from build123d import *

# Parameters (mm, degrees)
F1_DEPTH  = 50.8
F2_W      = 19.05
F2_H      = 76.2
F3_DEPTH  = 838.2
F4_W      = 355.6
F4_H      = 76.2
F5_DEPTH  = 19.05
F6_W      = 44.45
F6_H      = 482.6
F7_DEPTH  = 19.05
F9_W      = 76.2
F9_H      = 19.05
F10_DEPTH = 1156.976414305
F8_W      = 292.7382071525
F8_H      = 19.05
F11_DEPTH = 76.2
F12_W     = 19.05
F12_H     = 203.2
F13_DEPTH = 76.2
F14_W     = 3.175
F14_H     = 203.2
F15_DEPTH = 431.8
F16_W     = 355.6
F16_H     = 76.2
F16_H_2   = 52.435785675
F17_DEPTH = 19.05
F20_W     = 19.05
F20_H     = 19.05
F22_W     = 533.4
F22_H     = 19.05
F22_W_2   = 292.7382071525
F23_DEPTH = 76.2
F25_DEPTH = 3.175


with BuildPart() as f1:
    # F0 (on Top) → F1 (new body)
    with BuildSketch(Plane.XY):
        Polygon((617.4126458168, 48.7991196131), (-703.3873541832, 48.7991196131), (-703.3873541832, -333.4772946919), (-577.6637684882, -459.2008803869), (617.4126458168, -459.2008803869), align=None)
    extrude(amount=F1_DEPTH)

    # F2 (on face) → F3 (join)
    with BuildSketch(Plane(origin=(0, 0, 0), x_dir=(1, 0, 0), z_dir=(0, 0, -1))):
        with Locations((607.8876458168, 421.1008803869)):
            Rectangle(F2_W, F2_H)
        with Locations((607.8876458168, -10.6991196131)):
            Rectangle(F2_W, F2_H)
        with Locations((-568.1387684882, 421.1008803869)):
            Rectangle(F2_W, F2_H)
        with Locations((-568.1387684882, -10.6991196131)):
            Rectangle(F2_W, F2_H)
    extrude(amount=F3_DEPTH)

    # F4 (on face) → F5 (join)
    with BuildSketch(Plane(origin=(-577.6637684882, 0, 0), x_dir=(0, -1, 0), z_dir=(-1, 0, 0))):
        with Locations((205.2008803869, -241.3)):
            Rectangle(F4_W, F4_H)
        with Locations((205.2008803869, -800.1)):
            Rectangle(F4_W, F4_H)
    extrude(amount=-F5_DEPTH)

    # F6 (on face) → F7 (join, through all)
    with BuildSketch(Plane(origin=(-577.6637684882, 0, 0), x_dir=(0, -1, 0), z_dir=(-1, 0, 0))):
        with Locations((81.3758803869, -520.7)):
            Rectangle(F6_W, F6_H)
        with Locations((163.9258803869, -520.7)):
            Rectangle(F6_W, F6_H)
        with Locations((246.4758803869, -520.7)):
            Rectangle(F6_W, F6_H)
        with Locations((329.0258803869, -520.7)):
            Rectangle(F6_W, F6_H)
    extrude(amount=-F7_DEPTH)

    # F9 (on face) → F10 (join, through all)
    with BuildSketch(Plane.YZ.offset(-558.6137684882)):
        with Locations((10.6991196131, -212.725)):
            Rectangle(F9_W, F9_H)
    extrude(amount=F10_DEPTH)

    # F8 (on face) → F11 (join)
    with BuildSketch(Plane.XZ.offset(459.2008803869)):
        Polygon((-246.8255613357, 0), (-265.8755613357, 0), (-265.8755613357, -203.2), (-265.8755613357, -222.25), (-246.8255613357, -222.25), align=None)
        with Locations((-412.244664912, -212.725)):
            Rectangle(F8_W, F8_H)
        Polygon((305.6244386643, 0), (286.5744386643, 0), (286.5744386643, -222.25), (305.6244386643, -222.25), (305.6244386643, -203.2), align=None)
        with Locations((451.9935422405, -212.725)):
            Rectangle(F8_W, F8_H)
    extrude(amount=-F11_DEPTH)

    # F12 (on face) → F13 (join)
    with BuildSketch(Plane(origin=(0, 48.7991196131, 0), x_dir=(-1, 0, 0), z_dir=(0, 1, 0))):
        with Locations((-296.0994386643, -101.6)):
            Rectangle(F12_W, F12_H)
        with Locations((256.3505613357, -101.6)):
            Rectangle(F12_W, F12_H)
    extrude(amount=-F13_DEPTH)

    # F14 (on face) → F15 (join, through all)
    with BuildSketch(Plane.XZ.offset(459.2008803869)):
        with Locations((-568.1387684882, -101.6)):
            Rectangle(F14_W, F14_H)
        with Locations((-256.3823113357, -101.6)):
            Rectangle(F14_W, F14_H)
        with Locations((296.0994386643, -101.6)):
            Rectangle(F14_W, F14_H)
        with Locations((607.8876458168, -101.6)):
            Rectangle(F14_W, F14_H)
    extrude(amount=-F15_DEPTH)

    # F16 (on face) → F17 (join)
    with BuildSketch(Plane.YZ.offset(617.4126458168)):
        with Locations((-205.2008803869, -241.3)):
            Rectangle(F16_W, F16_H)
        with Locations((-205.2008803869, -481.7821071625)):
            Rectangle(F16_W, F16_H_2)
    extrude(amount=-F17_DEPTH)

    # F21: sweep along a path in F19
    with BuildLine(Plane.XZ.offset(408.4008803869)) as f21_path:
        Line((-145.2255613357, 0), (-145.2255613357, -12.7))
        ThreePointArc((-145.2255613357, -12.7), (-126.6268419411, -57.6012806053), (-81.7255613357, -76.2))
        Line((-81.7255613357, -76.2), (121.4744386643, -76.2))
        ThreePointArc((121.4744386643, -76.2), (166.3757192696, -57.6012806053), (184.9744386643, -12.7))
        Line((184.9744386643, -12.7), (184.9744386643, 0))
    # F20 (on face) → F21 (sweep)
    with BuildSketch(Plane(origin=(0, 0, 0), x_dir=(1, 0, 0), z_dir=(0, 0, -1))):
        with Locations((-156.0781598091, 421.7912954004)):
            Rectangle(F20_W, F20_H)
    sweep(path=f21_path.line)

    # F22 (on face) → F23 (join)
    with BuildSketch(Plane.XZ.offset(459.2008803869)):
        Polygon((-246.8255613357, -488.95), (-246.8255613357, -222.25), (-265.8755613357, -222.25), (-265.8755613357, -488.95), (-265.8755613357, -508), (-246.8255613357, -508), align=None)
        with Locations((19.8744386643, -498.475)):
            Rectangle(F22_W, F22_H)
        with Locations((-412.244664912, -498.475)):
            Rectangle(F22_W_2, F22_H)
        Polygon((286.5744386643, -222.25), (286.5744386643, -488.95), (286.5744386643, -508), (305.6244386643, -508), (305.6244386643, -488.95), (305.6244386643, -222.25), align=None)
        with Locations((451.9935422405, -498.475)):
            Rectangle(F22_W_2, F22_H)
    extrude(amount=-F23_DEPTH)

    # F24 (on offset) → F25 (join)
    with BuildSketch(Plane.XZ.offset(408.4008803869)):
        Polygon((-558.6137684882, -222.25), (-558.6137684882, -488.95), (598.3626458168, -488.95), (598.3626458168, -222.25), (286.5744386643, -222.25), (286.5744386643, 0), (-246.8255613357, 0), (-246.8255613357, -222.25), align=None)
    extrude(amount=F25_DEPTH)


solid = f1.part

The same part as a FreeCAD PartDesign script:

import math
import FreeCAD as App
import Part
import Sketcher
from FreeCAD import Vector
Q = App.Units.Quantity


def add_polygon(sketch, points):
    """Adds a closed chain of lines whose ends are joined by coincident constraints."""
    first, n = sketch.GeometryCount, len(points)
    for a, b in zip(points, points[1:] + points[:1]):
        sketch.addGeometry(Part.LineSegment(App.Vector(*a, 0), App.Vector(*b, 0)), False)
    for i in range(n):
        sketch.addConstraint(Sketcher.Constraint("Coincident", first + i, 2, first + (i + 1) % n, 1))

doc = App.newDocument("Part")
body = doc.addObject("PartDesign::Body", "Body")

sketch1 = body.newObject("Sketcher::SketchObject", "Sketch")
sketch1.AttachmentSupport = (doc.getObject("XY_Plane"), [""])
sketch1.MapMode = "FlatFace"
add_polygon(sketch1, [(617, 49), (-703, 49), (-703, -333), (-578, -459), (617, -459)])
sketch1.addConstraint([
    Sketcher.Constraint("Horizontal", 0),
    Sketcher.Constraint("Vertical", 1),
    Sketcher.Constraint("Horizontal", 3),
    Sketcher.Constraint("Vertical", 4),
    Sketcher.Constraint("DistanceX", 0, 2, 0, 1, Q("52 in")),
    Sketcher.Constraint("DistanceY", 4, 1, 4, 2, Q("20 in")),
    Sketcher.Constraint("Distance", 2, Q("7 in")),
    Sketcher.Constraint("Angle", 2, Q("-45 deg")),
    Sketcher.Constraint("DistanceY", -1, 1, 0, 2, Q("48.79912 mm")),
    Sketcher.Constraint("DistanceX", 2, 2, -1, 1, Q("577.663768 mm")),
])
pad1 = body.newObject("PartDesign::Pad", "Pad")
pad1.Profile = sketch1
pad1.Length = Q("2 in")

sketch2 = body.newObject("Sketcher::SketchObject", "Sketch001")
sketch2.AttachmentSupport = (doc.getObject("XY_Plane"), [""])
sketch2.MapMode = "FlatFace"
add_polygon(sketch2, [(598, -459), (598, -383), (617, -383), (617, -459)])
add_polygon(sketch2, [(598, -27), (598, 49), (617, 49), (617, -27)])
add_polygon(sketch2, [(-578, -459), (-578, -383), (-559, -383), (-559, -459)])
add_polygon(sketch2, [(-578, -27), (-578, 49), (-559, 49), (-559, -27)])
sketch2.addConstraint([
    Sketcher.Constraint("Vertical", 0),
    Sketcher.Constraint("Horizontal", 1),
    Sketcher.Constraint("Vertical", 2),
    Sketcher.Constraint("Horizontal", 3),
    Sketcher.Constraint("Vertical", 4),
    Sketcher.Constraint("Horizontal", 5),
    Sketcher.Constraint("Vertical", 6),
    Sketcher.Constraint("Horizontal", 7),
    Sketcher.Constraint("Vertical", 8),
    Sketcher.Constraint("Horizontal", 9),
    Sketcher.Constraint("Vertical", 10),
    Sketcher.Constraint("Horizontal", 11),
    Sketcher.Constraint("Vertical", 12),
    Sketcher.Constraint("Horizontal", 13),
    Sketcher.Constraint("Vertical", 14),
    Sketcher.Constraint("Horizontal", 15),
    Sketcher.Constraint("Horizontal", 1, 2, 8, 2),
    Sketcher.Constraint("Horizontal", 3, 2, 10, 2),
    Sketcher.Constraint("Horizontal", 5, 2, 12, 2),
    Sketcher.Constraint("Horizontal", 7, 2, 14, 2),
    Sketcher.Constraint("Vertical", 3, 2, 4, 2),
    Sketcher.Constraint("Vertical", 2, 2, 5, 2),
    Sketcher.Constraint("Vertical", 11, 2, 12, 2),
    Sketcher.Constraint("Vertical", 10, 2, 13, 2),
    Sketcher.Constraint("Equal", 7, 9),
    Sketcher.Constraint("Equal", 2, 4),
    Sketcher.Constraint("DistanceY", 0, 1, 0, 2, Q("3 in")),
    Sketcher.Constraint("DistanceY", 0, 2, 4, 2, Q("17 in")),
    Sketcher.Constraint("DistanceX", 1, 1, 1, 2, Q("0.75 in")),
    Sketcher.Constraint("DistanceY", 0, 2, -1, 1, Q("383.00088 mm")),
    Sketcher.Constraint("DistanceX", 8, 2, -1, 1, Q("577.663768 mm")),
    Sketcher.Constraint("DistanceX", -1, 1, 0, 2, Q("598.362646 mm")),
])
pad2 = body.newObject("PartDesign::Pad", "Pad001")
pad2.Profile = sketch2
pad2.Length = Q("33 in")
pad2.Reversed = True

sketch3 = body.newObject("Sketcher::SketchObject", "Sketch002")
sketch3.AttachmentSupport = (doc.getObject("YZ_Plane"), [""])
sketch3.MapMode = "FlatFace"
sketch3.AttachmentOffset = App.Placement(Vector(0, 0, -577.663768), App.Rotation())
add_polygon(sketch3, [(-27, -203), (-27, -279), (-383, -279), (-383, -203)])
add_polygon(sketch3, [(-27, -762), (-27, -838), (-383, -838), (-383, -762)])
sketch3.addConstraint([
    Sketcher.Constraint("Vertical", 0),
    Sketcher.Constraint("Horizontal", 1),
    Sketcher.Constraint("Vertical", 2),
    Sketcher.Constraint("Horizontal", 3),
    Sketcher.Constraint("Vertical", 4),
    Sketcher.Constraint("Horizontal", 5),
    Sketcher.Constraint("Vertical", 6),
    Sketcher.Constraint("Horizontal", 7),
    Sketcher.Constraint("Vertical", 3, 2, 4, 2),
    Sketcher.Constraint("Vertical", 2, 2, 5, 2),
    Sketcher.Constraint("Equal", 2, 4),
    Sketcher.Constraint("DistanceX", 1, 2, 1, 1, Q("14 in")),
    Sketcher.Constraint("DistanceY", 0, 2, 0, 1, Q("3 in")),
    Sketcher.Constraint("DistanceY", 0, 2, -1, 1, Q("11 in")),
    Sketcher.Constraint("DistanceY", 4, 2, -1, 1, Q("33 in")),
    Sketcher.Constraint("DistanceX", 0, 2, -1, 1, Q("27.40088 mm")),
])
pad3 = body.newObject("PartDesign::Pad", "Pad002")
pad3.Profile = sketch3
pad3.Length = Q("0.75 in")

sketch4 = body.newObject("Sketcher::SketchObject", "Sketch003")
sketch4.AttachmentSupport = (doc.getObject("YZ_Plane"), [""])
sketch4.MapMode = "FlatFace"
sketch4.AttachmentOffset = App.Placement(Vector(0, 0, -577.663768), App.Rotation())
add_polygon(sketch4, [(-59, -279), (-59, -762), (-104, -762), (-104, -279)])
add_polygon(sketch4, [(-142, -279), (-142, -762), (-186, -762), (-186, -279)])
add_polygon(sketch4, [(-224, -279), (-224, -762), (-269, -762), (-269, -279)])
add_polygon(sketch4, [(-307, -279), (-307, -762), (-351, -762), (-351, -279)])
sketch4.addConstraint([
    Sketcher.Constraint("Vertical", 0),
    Sketcher.Constraint("Horizontal", 1),
    Sketcher.Constraint("Vertical", 2),
    Sketcher.Constraint("Horizontal", 3),
    Sketcher.Constraint("Vertical", 4),
    Sketcher.Constraint("Horizontal", 5),
    Sketcher.Constraint("Vertical", 6),
    Sketcher.Constraint("Horizontal", 7),
    Sketcher.Constraint("Vertical", 8),
    Sketcher.Constraint("Horizontal", 9),
    Sketcher.Constraint("Vertical", 10),
    Sketcher.Constraint("Horizontal", 11),
    Sketcher.Constraint("Vertical", 12),
    Sketcher.Constraint("Horizontal", 13),
    Sketcher.Constraint("Vertical", 14),
    Sketcher.Constraint("Horizontal", 15),
    Sketcher.Constraint("Horizontal", 1, 2, 4, 2),
    Sketcher.Constraint("Horizontal", 3, 2, 6, 2),
    Sketcher.Constraint("Horizontal", 5, 2, 8, 2),
    Sketcher.Constraint("Horizontal", 7, 2, 10, 2),
    Sketcher.Constraint("Horizontal", 9, 2, 12, 2),
    Sketcher.Constraint("Horizontal", 11, 2, 14, 2),
    Sketcher.Constraint("Equal", 3, 5),
    Sketcher.Constraint("Equal", 7, 9),
    Sketcher.Constraint("Equal", 11, 13),
    Sketcher.Constraint("DistanceY", 0, 2, 0, 1, Q("19 in")),
    Sketcher.Constraint("DistanceY", 0, 2, -1, 1, Q("30 in")),
    Sketcher.Constraint("DistanceX", 5, 2, 0, 2, Q("5 in")),
    Sketcher.Constraint("DistanceX", 9, 2, 4, 2, Q("5 in")),
    Sketcher.Constraint("DistanceX", 12, 2, 1, 2, Q("8 in")),
    Sketcher.Constraint("DistanceX", 13, 2, 8, 2, Q("5 in")),
    Sketcher.Constraint("DistanceX", 0, 2, -1, 1, Q("59.15088 mm")),
])
pad4 = body.newObject("PartDesign::Pad", "Pad003")
pad4.Profile = sketch4
pad4.Length = Q("0.75 in")

sketch5 = body.newObject("Sketcher::SketchObject", "Sketch004")
sketch5.AttachmentSupport = (doc.getObject("YZ_Plane"), [""])
sketch5.MapMode = "FlatFace"
sketch5.AttachmentOffset = App.Placement(Vector(0, 0, -558.613768), App.Rotation())
add_polygon(sketch5, [(-27, -203), (-27, -222), (49, -222), (49, -203)])
sketch5.addConstraint([
    Sketcher.Constraint("Vertical", 0),
    Sketcher.Constraint("Horizontal", 1),
    Sketcher.Constraint("Vertical", 2),
    Sketcher.Constraint("Horizontal", 3),
    Sketcher.Constraint("DistanceX", 1, 1, 1, 2, Q("3 in")),
    Sketcher.Constraint("DistanceY", 2, 2, -1, 1, Q("8 in")),
    Sketcher.Constraint("DistanceY", 0, 2, 0, 1, Q("0.75 in")),
    Sketcher.Constraint("DistanceX", 0, 2, -1, 1, Q("27.40088 mm")),
])
pad5 = body.newObject("PartDesign::Pad", "Pad004")
pad5.Profile = sketch5
pad5.Type = "UpToLast"

sketch6 = body.newObject("Sketcher::SketchObject", "Sketch005")
sketch6.AttachmentSupport = (doc.getObject("XZ_Plane"), [""])
sketch6.MapMode = "FlatFace"
sketch6.AttachmentOffset = App.Placement(Vector(0, 0, 459.20088), App.Rotation())
add_polygon(sketch6, [(-247, 0), (-266, 0), (-266, -203), (-559, -203), (-559, -222), (-247, -222)])
add_polygon(sketch6, [(306, 0), (287, 0), (287, -222), (598, -222), (598, -203), (306, -203)])
sketch6.addConstraint([
    Sketcher.Constraint("Horizontal", 0),
    Sketcher.Constraint("Vertical", 1),
    Sketcher.Constraint("Horizontal", 2),
    Sketcher.Constraint("Vertical", 3),
    Sketcher.Constraint("Horizontal", 4),
    Sketcher.Constraint("Vertical", 5),
    Sketcher.Constraint("Horizontal", 6),
    Sketcher.Constraint("Vertical", 7),
    Sketcher.Constraint("Horizontal", 8),
    Sketcher.Constraint("Vertical", 9),
    Sketcher.Constraint("Horizontal", 10),
    Sketcher.Constraint("Vertical", 11),
    Sketcher.Constraint("PointOnObject", 0, 2, -1),
    Sketcher.Constraint("PointOnObject", 6, 2, -1),
    Sketcher.Constraint("Horizontal", 4, 2, 7, 2),
    Sketcher.Constraint("Horizontal", 2, 2, 9, 2),
    Sketcher.Constraint("Equal", 0, 6),
    Sketcher.Constraint("Equal", 4, 8),
    Sketcher.Constraint("Equal", 6, 3),
    Sketcher.Constraint("DistanceY", 1, 2, 1, 1, Q("8 in")),
    Sketcher.Constraint("DistanceX", 5, 2, 6, 2, Q("21 in")),
    Sketcher.Constraint("DistanceX", 0, 2, 0, 1, Q("0.75 in")),
    Sketcher.Constraint("DistanceX", 2, 2, 2, 1, Q("292.738207 mm")),
    Sketcher.Constraint("DistanceX", 0, 2, -1, 1, Q("265.875561 mm")),
])
pad6 = body.newObject("PartDesign::Pad", "Pad005")
pad6.Profile = sketch6
pad6.Length = Q("3 in")
pad6.Reversed = True

sketch7 = body.newObject("Sketcher::SketchObject", "Sketch006")
sketch7.AttachmentSupport = (doc.getObject("XZ_Plane"), [""])
sketch7.MapMode = "FlatFace"
sketch7.AttachmentOffset = App.Placement(Vector(0, 0, -48.79912), App.Rotation())
add_polygon(sketch7, [(306, 0), (306, -203), (287, -203), (287, 0)])
add_polygon(sketch7, [(-247, 0), (-247, -203), (-266, -203), (-266, 0)])
sketch7.addConstraint([
    Sketcher.Constraint("Vertical", 0),
    Sketcher.Constraint("Horizontal", 1),
    Sketcher.Constraint("Vertical", 2),
    Sketcher.Constraint("Horizontal", 3),
    Sketcher.Constraint("Vertical", 4),
    Sketcher.Constraint("Horizontal", 5),
    Sketcher.Constraint("Vertical", 6),
    Sketcher.Constraint("Horizontal", 7),
    Sketcher.Constraint("PointOnObject", 2, 2, -1),
    Sketcher.Constraint("PointOnObject", 6, 2, -1),
    Sketcher.Constraint("Horizontal", 1, 2, 4, 2),
    Sketcher.Constraint("Equal", 3, 5),
    Sketcher.Constraint("DistanceY", 0, 2, 0, 1, Q("8 in")),
    Sketcher.Constraint("DistanceX", 4, 2, 1, 2, Q("21 in")),
    Sketcher.Constraint("DistanceX", 1, 2, 1, 1, Q("0.75 in")),
    Sketcher.Constraint("DistanceX", -1, 1, 0, 2, Q("305.624439 mm")),
])
pad7 = body.newObject("PartDesign::Pad", "Pad006")
pad7.Profile = sketch7
pad7.Length = Q("3 in")

sketch8 = body.newObject("Sketcher::SketchObject", "Sketch007")
sketch8.AttachmentSupport = (doc.getObject("XZ_Plane"), [""])
sketch8.MapMode = "FlatFace"
sketch8.AttachmentOffset = App.Placement(Vector(0, 0, 459.20088), App.Rotation())
add_polygon(sketch8, [(-569.7, 0), (-569.7, -203.2), (-566.6, -203.2), (-566.6, 0)])
add_polygon(sketch8, [(-258, 0), (-258, -203.2), (-254.8, -203.2), (-254.8, 0)])
add_polygon(sketch8, [(294.5, 0), (294.5, -203.2), (297.7, -203.2), (297.7, 0)])
add_polygon(sketch8, [(606.3, 0), (606.3, -203.2), (609.5, -203.2), (609.5, 0)])
sketch8.addConstraint([
    Sketcher.Constraint("Vertical", 0),
    Sketcher.Constraint("Horizontal", 1),
    Sketcher.Constraint("Vertical", 2),
    Sketcher.Constraint("Horizontal", 3),
    Sketcher.Constraint("Vertical", 4),
    Sketcher.Constraint("Horizontal", 5),
    Sketcher.Constraint("Vertical", 6),
    Sketcher.Constraint("Horizontal", 7),
    Sketcher.Constraint("Vertical", 8),
    Sketcher.Constraint("Horizontal", 9),
    Sketcher.Constraint("Vertical", 10),
    Sketcher.Constraint("Horizontal", 11),
    Sketcher.Constraint("Vertical", 12),
    Sketcher.Constraint("Horizontal", 13),
    Sketcher.Constraint("Vertical", 14),
    Sketcher.Constraint("Horizontal", 15),
    Sketcher.Constraint("PointOnObject", 2, 2, -1),
    Sketcher.Constraint("PointOnObject", 6, 2, -1),
    Sketcher.Constraint("PointOnObject", 10, 2, -1),
    Sketcher.Constraint("PointOnObject", 14, 2, -1),
    Sketcher.Constraint("Horizontal", 1, 2, 4, 2),
    Sketcher.Constraint("Horizontal", 5, 2, 8, 2),
    Sketcher.Constraint("Horizontal", 9, 2, 12, 2),
    Sketcher.Constraint("Equal", 3, 5),
    Sketcher.Constraint("Equal", 7, 9),
    Sketcher.Constraint("Equal", 11, 13),
    Sketcher.Constraint("DistanceY", 0, 2, 0, 1, Q("8 in")),
    Sketcher.Constraint("DistanceX", 1, 1, 1, 2, Q("0.125 in")),
    Sketcher.Constraint("DistanceX", 0, 2, -1, 1, Q("569.726268 mm")),
    Sketcher.Constraint("DistanceX", 4, 2, -1, 1, Q("257.969811 mm")),
    Sketcher.Constraint("DistanceX", -1, 1, 8, 2, Q("294.511939 mm")),
    Sketcher.Constraint("DistanceX", -1, 1, 12, 2, Q("606.300146 mm")),
])
pad8 = body.newObject("PartDesign::Pad", "Pad007")
pad8.Profile = sketch8
pad8.Length = Q("17 in")
pad8.Reversed = True

sketch9 = body.newObject("Sketcher::SketchObject", "Sketch008")
sketch9.AttachmentSupport = (doc.getObject("YZ_Plane"), [""])
sketch9.MapMode = "FlatFace"
sketch9.AttachmentOffset = App.Placement(Vector(0, 0, 617.412646), App.Rotation())
add_polygon(sketch9, [(-383, -203), (-383, -279), (-27, -279), (-27, -203)])
add_polygon(sketch9, [(-383, -456), (-383, -508), (-27, -508), (-27, -456)])
sketch9.addConstraint([
    Sketcher.Constraint("Vertical", 0),
    Sketcher.Constraint("Horizontal", 1),
    Sketcher.Constraint("Vertical", 2),
    Sketcher.Constraint("Horizontal", 3),
    Sketcher.Constraint("Vertical", 4),
    Sketcher.Constraint("Horizontal", 5),
    Sketcher.Constraint("Vertical", 6),
    Sketcher.Constraint("Horizontal", 7),
    Sketcher.Constraint("Vertical", 3, 2, 4, 2),
    Sketcher.Constraint("Vertical", 2, 2, 5, 2),
    Sketcher.Constraint("DistanceX", 1, 1, 1, 2, Q("14 in")),
    Sketcher.Constraint("DistanceY", 0, 2, 0, 1, Q("3 in")),
    Sketcher.Constraint("DistanceY", 0, 2, -1, 1, Q("11 in")),
    Sketcher.Constraint("DistanceY", 4, 2, -1, 1, Q("20 in")),
    Sketcher.Constraint("DistanceY", 4, 2, 4, 1, Q("52.435786 mm")),
    Sketcher.Constraint("DistanceX", 0, 2, -1, 1, Q("383.00088 mm")),
])
pad9 = body.newObject("PartDesign::Pad", "Pad008")
pad9.Profile = sketch9
pad9.Length = Q("0.75 in")
pad9.Reversed = True

sketch10 = body.newObject("Sketcher::SketchObject", "Sketch009")
sketch10.AttachmentSupport = (doc.getObject("XY_Plane"), [""])
sketch10.MapMode = "FlatFace"
add_polygon(sketch10, [(-166, -431), (-166, -412), (-147, -412), (-147, -431)])
sketch10.addConstraint([
    Sketcher.Constraint("Vertical", 0),
    Sketcher.Constraint("Horizontal", 1),
    Sketcher.Constraint("Vertical", 2),
    Sketcher.Constraint("Horizontal", 3),
    Sketcher.Constraint("Equal", 3, 0),
    Sketcher.Constraint("DistanceX", 1, 1, 1, 2, Q("0.75 in")),
    Sketcher.Constraint("DistanceX", 0, 2, -1, 1, Q("165.60316 mm")),
    Sketcher.Constraint("DistanceY", 0, 2, -1, 1, Q("412.266295 mm")),
])

sketch11 = body.newObject("Sketcher::SketchObject", "Sketch010")
sketch11.AttachmentSupport = (doc.getObject("XZ_Plane"), [""])
sketch11.MapMode = "FlatFace"
sketch11.AttachmentOffset = App.Placement(Vector(0, 0, 408.40088), App.Rotation())
sketch11.addGeometry([
    Part.LineSegment(Vector(-145, 0, 0), Vector(-145, -13, 0)),
    Part.ArcOfCircle(Part.Circle(Vector(-82, -13, 0), Vector(0, 0, 1), 64), math.radians(180), math.radians(270)),
    Part.LineSegment(Vector(-82, -76, 0), Vector(121, -76, 0)),
    Part.ArcOfCircle(Part.Circle(Vector(121, -13, 0), Vector(0, 0, 1), 64), math.radians(-90), math.radians(0)),
    Part.LineSegment(Vector(185, -13, 0), Vector(185, 0, 0)),
], False)
sketch11.addConstraint([
    Sketcher.Constraint("Tangent", 0, 2, 1, 1),
    Sketcher.Constraint("Tangent", 1, 2, 2, 1),
    Sketcher.Constraint("Tangent", 2, 2, 3, 1),
    Sketcher.Constraint("Tangent", 3, 2, 4, 1),
    Sketcher.Constraint("Vertical", 0),
    Sketcher.Constraint("Horizontal", 2),
    Sketcher.Constraint("Vertical", 4),
    Sketcher.Constraint("Equal", 1, 3),
    Sketcher.Constraint("PointOnObject", 0, 1, -1),
    Sketcher.Constraint("PointOnObject", 4, 2, -1),
    Sketcher.Constraint("Radius", 1, Q("2.5 in")),
    Sketcher.Constraint("DistanceX", 2, 1, 2, 2, Q("8 in")),
    Sketcher.Constraint("DistanceY", 0, 2, 0, 1, Q("0.5 in")),
    Sketcher.Constraint("DistanceX", 1, 3, -1, 1, Q("81.725561 mm")),
])
doc.recompute()

additivepipe = body.newObject("PartDesign::AdditivePipe", "AdditivePipe")
additivepipe.Profile = sketch10
additivepipe.Spine = (sketch11, ["Edge1", "Edge2", "Edge3", "Edge4", "Edge5"])

sketch12 = body.newObject("Sketcher::SketchObject", "Sketch011")
sketch12.AttachmentSupport = (doc.getObject("XZ_Plane"), [""])
sketch12.MapMode = "FlatFace"
sketch12.AttachmentOffset = App.Placement(Vector(0, 0, 459.20088), App.Rotation())
add_polygon(sketch12, [(-247, -222), (-266, -222), (-266, -489), (-559, -489), (-559, -508), (598, -508), (598, -489), (306, -489), (306, -222), (287, -222), (287, -489), (-247, -489)])
sketch12.addConstraint([
    Sketcher.Constraint("Horizontal", 0),
    Sketcher.Constraint("Vertical", 1),
    Sketcher.Constraint("Horizontal", 2),
    Sketcher.Constraint("Vertical", 3),
    Sketcher.Constraint("Horizontal", 4),
    Sketcher.Constraint("Vertical", 5),
    Sketcher.Constraint("Horizontal", 6),
    Sketcher.Constraint("Vertical", 7),
    Sketcher.Constraint("Horizontal", 8),
    Sketcher.Constraint("Vertical", 9),
    Sketcher.Constraint("Horizontal", 10),
    Sketcher.Constraint("Vertical", 11),
    Sketcher.Constraint("Horizontal", 2, 2, 5, 2),
    Sketcher.Constraint("Horizontal", 0, 2, 7, 2),
    Sketcher.Constraint("Horizontal", 6, 2, 9, 2),
    Sketcher.Constraint("Equal", 2, 6),
    Sketcher.Constraint("Equal", 0, 8),
    Sketcher.Constraint("Equal", 8, 3),
    Sketcher.Constraint("DistanceX", 10, 2, 10, 1, Q("21 in")),
    Sketcher.Constraint("DistanceY", 1, 2, 1, 1, Q("10.5 in")),
    Sketcher.Constraint("DistanceY", 3, 2, -1, 1, Q("20 in")),
    Sketcher.Constraint("DistanceX", 0, 2, 0, 1, Q("0.75 in")),
    Sketcher.Constraint("DistanceX", 2, 2, 2, 1, Q("292.738207 mm")),
    Sketcher.Constraint("DistanceX", 0, 2, -1, 1, Q("265.875561 mm")),
])
pad10 = body.newObject("PartDesign::Pad", "Pad009")
pad10.Profile = sketch12
pad10.Length = Q("3 in")
pad10.Reversed = True

sketch13 = body.newObject("Sketcher::SketchObject", "Sketch012")
sketch13.AttachmentSupport = (doc.getObject("XZ_Plane"), [""])
sketch13.MapMode = "FlatFace"
sketch13.AttachmentOffset = App.Placement(Vector(0, 0, 408.40088), App.Rotation())
add_polygon(sketch13, [(-559, -222), (-559, -489), (598, -489), (598, -222), (287, -222), (287, 0), (-247, 0), (-247, -222)])
sketch13.addConstraint([
    Sketcher.Constraint("Vertical", 0),
    Sketcher.Constraint("Horizontal", 1),
    Sketcher.Constraint("Vertical", 2),
    Sketcher.Constraint("Horizontal", 3),
    Sketcher.Constraint("Vertical", 4),
    Sketcher.Constraint("Horizontal", 5),
    Sketcher.Constraint("Vertical", 6),
    Sketcher.Constraint("Horizontal", 7),
    Sketcher.Constraint("PointOnObject", 4, 2, -1),
    Sketcher.Constraint("Horizontal", 3, 2, 6, 2),
    Sketcher.Constraint("Equal", 3, 7),
    Sketcher.Constraint("DistanceX", 5, 2, 5, 1, Q("21 in")),
    Sketcher.Constraint("DistanceY", 0, 2, 0, 1, Q("10.5 in")),
    Sketcher.Constraint("DistanceY", 4, 1, 4, 2, Q("8.75 in")),
    Sketcher.Constraint("DistanceX", 1, 1, 1, 2, Q("1156.976414 mm")),
    Sketcher.Constraint("DistanceX", 0, 2, -1, 1, Q("558.613768 mm")),
])
pad11 = body.newObject("PartDesign::Pad", "Pad010")
pad11.Profile = sketch13
pad11.Length = Q("0.125 in")

doc.recompute()
